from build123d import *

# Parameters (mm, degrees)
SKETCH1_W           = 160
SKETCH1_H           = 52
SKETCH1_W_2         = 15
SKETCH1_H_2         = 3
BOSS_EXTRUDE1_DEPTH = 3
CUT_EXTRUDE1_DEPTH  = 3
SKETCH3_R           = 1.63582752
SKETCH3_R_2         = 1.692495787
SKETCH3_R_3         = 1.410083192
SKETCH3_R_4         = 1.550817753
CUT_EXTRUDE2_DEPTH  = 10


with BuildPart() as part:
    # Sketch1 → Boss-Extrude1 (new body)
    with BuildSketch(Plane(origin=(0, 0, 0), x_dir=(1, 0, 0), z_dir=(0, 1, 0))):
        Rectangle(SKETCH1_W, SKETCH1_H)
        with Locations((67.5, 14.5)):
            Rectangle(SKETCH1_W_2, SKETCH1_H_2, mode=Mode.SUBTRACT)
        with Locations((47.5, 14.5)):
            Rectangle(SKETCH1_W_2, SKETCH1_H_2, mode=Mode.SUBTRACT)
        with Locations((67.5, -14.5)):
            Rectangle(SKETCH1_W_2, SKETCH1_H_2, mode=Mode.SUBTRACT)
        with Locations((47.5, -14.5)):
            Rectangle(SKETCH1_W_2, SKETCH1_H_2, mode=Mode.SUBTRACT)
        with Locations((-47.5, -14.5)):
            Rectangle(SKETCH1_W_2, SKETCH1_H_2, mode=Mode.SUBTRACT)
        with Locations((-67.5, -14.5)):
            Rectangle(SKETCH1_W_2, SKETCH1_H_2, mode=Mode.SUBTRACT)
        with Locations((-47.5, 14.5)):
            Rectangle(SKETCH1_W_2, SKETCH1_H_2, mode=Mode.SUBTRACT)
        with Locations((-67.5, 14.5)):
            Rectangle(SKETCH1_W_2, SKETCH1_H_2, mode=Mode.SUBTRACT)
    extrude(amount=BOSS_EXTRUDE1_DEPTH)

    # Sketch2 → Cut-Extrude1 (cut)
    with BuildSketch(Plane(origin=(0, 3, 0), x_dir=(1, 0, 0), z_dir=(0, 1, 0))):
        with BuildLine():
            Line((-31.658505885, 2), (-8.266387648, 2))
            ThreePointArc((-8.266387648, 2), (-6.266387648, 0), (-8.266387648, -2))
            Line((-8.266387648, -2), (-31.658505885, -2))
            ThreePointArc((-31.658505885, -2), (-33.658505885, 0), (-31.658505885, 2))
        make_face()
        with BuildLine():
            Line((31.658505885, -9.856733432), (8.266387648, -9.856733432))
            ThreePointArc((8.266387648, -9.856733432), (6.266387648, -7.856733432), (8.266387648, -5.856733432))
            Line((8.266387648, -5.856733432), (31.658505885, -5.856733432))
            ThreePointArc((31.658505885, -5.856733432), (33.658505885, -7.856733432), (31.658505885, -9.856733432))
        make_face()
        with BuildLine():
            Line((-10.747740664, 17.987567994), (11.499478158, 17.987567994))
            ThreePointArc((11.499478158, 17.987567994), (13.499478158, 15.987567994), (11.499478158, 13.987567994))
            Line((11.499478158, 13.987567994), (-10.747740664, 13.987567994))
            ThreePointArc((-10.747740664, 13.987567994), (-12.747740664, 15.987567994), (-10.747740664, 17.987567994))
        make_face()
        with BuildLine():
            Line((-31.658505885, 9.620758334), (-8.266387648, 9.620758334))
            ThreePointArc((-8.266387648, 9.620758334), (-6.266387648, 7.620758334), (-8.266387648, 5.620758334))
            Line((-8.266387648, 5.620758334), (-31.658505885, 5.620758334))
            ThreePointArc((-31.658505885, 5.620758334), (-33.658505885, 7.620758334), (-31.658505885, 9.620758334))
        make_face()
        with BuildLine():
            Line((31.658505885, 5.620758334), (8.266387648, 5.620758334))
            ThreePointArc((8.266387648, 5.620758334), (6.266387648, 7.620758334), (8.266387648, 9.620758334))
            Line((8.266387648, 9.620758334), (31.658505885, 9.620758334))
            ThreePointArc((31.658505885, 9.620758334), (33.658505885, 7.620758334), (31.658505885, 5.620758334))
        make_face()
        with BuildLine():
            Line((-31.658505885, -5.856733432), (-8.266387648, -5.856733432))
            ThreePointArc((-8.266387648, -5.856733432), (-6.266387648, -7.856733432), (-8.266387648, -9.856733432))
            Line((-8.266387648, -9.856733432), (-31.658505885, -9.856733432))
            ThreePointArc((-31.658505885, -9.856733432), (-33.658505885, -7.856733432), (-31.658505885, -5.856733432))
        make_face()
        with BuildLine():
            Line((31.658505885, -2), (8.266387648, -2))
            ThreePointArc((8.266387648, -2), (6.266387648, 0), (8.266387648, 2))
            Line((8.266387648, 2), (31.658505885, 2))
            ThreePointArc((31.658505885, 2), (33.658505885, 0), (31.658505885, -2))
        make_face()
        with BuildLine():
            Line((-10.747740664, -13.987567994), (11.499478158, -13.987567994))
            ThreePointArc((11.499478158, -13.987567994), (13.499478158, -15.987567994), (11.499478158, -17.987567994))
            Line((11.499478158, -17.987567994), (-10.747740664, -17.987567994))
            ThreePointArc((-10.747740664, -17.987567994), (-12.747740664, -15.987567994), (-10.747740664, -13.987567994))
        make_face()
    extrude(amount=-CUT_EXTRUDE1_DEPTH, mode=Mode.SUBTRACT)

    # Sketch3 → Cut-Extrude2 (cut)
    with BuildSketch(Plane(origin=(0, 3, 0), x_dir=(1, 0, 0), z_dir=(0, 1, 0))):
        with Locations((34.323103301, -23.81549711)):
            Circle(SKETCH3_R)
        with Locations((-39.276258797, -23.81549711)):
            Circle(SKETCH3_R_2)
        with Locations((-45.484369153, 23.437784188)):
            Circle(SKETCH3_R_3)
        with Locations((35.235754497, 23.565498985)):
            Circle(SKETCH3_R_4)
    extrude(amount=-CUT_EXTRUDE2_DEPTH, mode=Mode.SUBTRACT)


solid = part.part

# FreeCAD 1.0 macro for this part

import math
import FreeCAD as App
import Part
import Sketcher

doc = App.newDocument("Part")
body = doc.addObject("PartDesign::Body", "Body")

sketch1 = body.newObject("Sketcher::SketchObject", "Sketch")
sketch1.AttachmentSupport = (doc.getObject("XZ_Plane"), [""])
sketch1.MapMode = "FlatFace"
sketch1.addGeometry([
    Part.LineSegment(App.Vector(-80, -26, 0), App.Vector(-80, 26, 0)),
    Part.LineSegment(App.Vector(-80, 26, 0), App.Vector(80, 26, 0)),
    Part.LineSegment(App.Vector(80, 26, 0), App.Vector(80, -26, 0)),
    Part.LineSegment(App.Vector(80, -26, 0), App.Vector(-80, -26, 0)),
    Part.LineSegment(App.Vector(-60, 16, 0), App.Vector(-75, 16, 0)),
    Part.LineSegment(App.Vector(-75, 16, 0), App.Vector(-75, 13, 0)),
    Part.LineSegment(App.Vector(-75, 13, 0), App.Vector(-60, 13, 0)),
    Part.LineSegment(App.Vector(-60, 13, 0), App.Vector(-60, 16, 0)),
    Part.LineSegment(App.Vector(-40, 16, 0), App.Vector(-55, 16, 0)),
    Part.LineSegment(App.Vector(-55, 16, 0), App.Vector(-55, 13, 0)),
    Part.LineSegment(App.Vector(-55, 13, 0), App.Vector(-40, 13, 0)),
    Part.LineSegment(App.Vector(-40, 13, 0), App.Vector(-40, 16, 0)),
    Part.LineSegment(App.Vector(55, 16, 0), App.Vector(40, 16, 0)),
    Part.LineSegment(App.Vector(40, 16, 0), App.Vector(40, 13, 0)),
    Part.LineSegment(App.Vector(40, 13, 0), App.Vector(55, 13, 0)),
    Part.LineSegment(App.Vector(55, 13, 0), App.Vector(55, 16, 0)),
    Part.LineSegment(App.Vector(75, 16, 0), App.Vector(60, 16, 0)),
    Part.LineSegment(App.Vector(60, 16, 0), App.Vector(60, 13, 0)),
    Part.LineSegment(App.Vector(60, 13, 0), App.Vector(75, 13, 0)),
    Part.LineSegment(App.Vector(75, 13, 0), App.Vector(75, 16, 0)),
    Part.LineSegment(App.Vector(-60, -13, 0), App.Vector(-75, -13, 0)),
    Part.LineSegment(App.Vector(-75, -13, 0), App.Vector(-75, -16, 0)),
    Part.LineSegment(App.Vector(-75, -16, 0), App.Vector(-60, -16, 0)),
    Part.LineSegment(App.Vector(-60, -16, 0), App.Vector(-60, -13, 0)),
    Part.LineSegment(App.Vector(-40, -13, 0), App.Vector(-55, -13, 0)),
    Part.LineSegment(App.Vector(-55, -13, 0), App.Vector(-55, -16, 0)),
    Part.LineSegment(App.Vector(-55, -16, 0), App.Vector(-40, -16, 0)),
    Part.LineSegment(App.Vector(-40, -16, 0), App.Vector(-40, -13, 0)),
    Part.LineSegment(App.Vector(55, -13, 0), App.Vector(40, -13, 0)),
    Part.LineSegment(App.Vector(40, -13, 0), App.Vector(40, -16, 0)),
    Part.LineSegment(App.Vector(40, -16, 0), App.Vector(55, -16, 0)),
    Part.LineSegment(App.Vector(55, -16, 0), App.Vector(55, -13, 0)),
    Part.LineSegment(App.Vector(75, -13, 0), App.Vector(60, -13, 0)),
    Part.LineSegment(App.Vector(60, -13, 0), App.Vector(60, -16, 0)),
    Part.LineSegment(App.Vector(60, -16, 0), App.Vector(75, -16, 0)),
    Part.LineSegment(App.Vector(75, -16, 0), App.Vector(75, -13, 0)),
], False)
sketch1.addConstraint([
    Sketcher.Constraint("Coincident", 0, 2, 1, 1),
    Sketcher.Constraint("Coincident", 1, 2, 2, 1),
    Sketcher.Constraint("Coincident", 2, 2, 3, 1),
    Sketcher.Constraint("Coincident", 3, 2, 0, 1),
    Sketcher.Constraint("Coincident", 4, 2, 5, 1),
    Sketcher.Constraint("Coincident", 5, 2, 6, 1),
    Sketcher.Constraint("Coincident", 6, 2, 7, 1),
    Sketcher.Constraint("Coincident", 7, 2, 4, 1),
    Sketcher.Constraint("Coincident", 8, 2, 9, 1),
    Sketcher.Constraint("Coincident", 9, 2, 10, 1),
    Sketcher.Constraint("Coincident", 10, 2, 11, 1),
    Sketcher.Constraint("Coincident", 11, 2, 8, 1),
    Sketcher.Constraint("Coincident", 12, 2, 13, 1),
    Sketcher.Constraint("Coincident", 13, 2, 14, 1),
    Sketcher.Constraint("Coincident", 14, 2, 15, 1),
    Sketcher.Constraint("Coincident", 15, 2, 12, 1),
    Sketcher.Constraint("Coincident", 16, 2, 17, 1),
    Sketcher.Constraint("Coincident", 17, 2, 18, 1),
    Sketcher.Constraint("Coincident", 18, 2, 19, 1),
    Sketcher.Constraint("Coincident", 19, 2, 16, 1),
    Sketcher.Constraint("Coincident", 20, 2, 21, 1),
    Sketcher.Constraint("Coincident", 21, 2, 22, 1),
    Sketcher.Constraint("Coincident", 22, 2, 23, 1),
    Sketcher.Constraint("Coincident", 23, 2, 20, 1),
    Sketcher.Constraint("Coincident", 24, 2, 25, 1),
    Sketcher.Constraint("Coincident", 25, 2, 26, 1),
    Sketcher.Constraint("Coincident", 26, 2, 27, 1),
    Sketcher.Constraint("Coincident", 27, 2, 24, 1),
    Sketcher.Constraint("Coincident", 28, 2, 29, 1),
    Sketcher.Constraint("Coincident", 29, 2, 30, 1),
    Sketcher.Constraint("Coincident", 30, 2, 31, 1),
    Sketcher.Constraint("Coincident", 31, 2, 28, 1),
    Sketcher.Constraint("Coincident", 32, 2, 33, 1),
    Sketcher.Constraint("Coincident", 33, 2, 34, 1),
    Sketcher.Constraint("Coincident", 34, 2, 35, 1),
    Sketcher.Constraint("Coincident", 35, 2, 32, 1),
    Sketcher.Constraint("Vertical", 0),
    Sketcher.Constraint("Horizontal", 1),
    Sketcher.Constraint("Vertical", 2),
    Sketcher.Constraint("Horizontal", 3),
    Sketcher.Constraint("Horizontal", 4),
    Sketcher.Constraint("Vertical", 5),
    Sketcher.Constraint("Horizontal", 6),
    Sketcher.Constraint("Vertical", 7),
    Sketcher.Constraint("Horizontal", 8),
    Sketcher.Constraint("Vertical", 9),
    Sketcher.Constraint("Horizontal", 10),
    Sketcher.Constraint("Vertical", 11),
    Sketcher.Constraint("Horizontal", 12),
    Sketcher.Constraint("Vertical", 13),
    Sketcher.Constraint("Horizontal", 14),
    Sketcher.Constraint("Vertical", 15),
    Sketcher.Constraint("Horizontal", 16),
    Sketcher.Constraint("Vertical", 17),
    Sketcher.Constraint("Horizontal", 18),
    Sketcher.Constraint("Vertical", 19),
    Sketcher.Constraint("Horizontal", 20),
    Sketcher.Constraint("Vertical", 21),
    Sketcher.Constraint("Horizontal", 22),
    Sketcher.Constraint("Vertical", 23),
    Sketcher.Constraint("Horizontal", 24),
    Sketcher.Constraint("Vertical", 25),
    Sketcher.Constraint("Horizontal", 26),
    Sketcher.Constraint("Vertical", 27),
    Sketcher.Constraint("Horizontal", 28),
    Sketcher.Constraint("Vertical", 29),
    Sketcher.Constraint("Horizontal", 30),
    Sketcher.Constraint("Vertical", 31),
    Sketcher.Constraint("Horizontal", 32),
    Sketcher.Constraint("Vertical", 33),
    Sketcher.Constraint("Horizontal", 34),
    Sketcher.Constraint("Vertical", 35),
    Sketcher.Constraint("Symmetric", 0, 2, 2, 2, -1, 1),
    Sketcher.Constraint("Symmetric", 18, 2, 20, 2, -1, 1),
    Sketcher.Constraint("Symmetric", 16, 2, 22, 2, -1, 1),
    Sketcher.Constraint("Symmetric", 14, 2, 24, 2, -1, 1),
    Sketcher.Constraint("Symmetric", 12, 2, 26, 2, -1, 1),
    Sketcher.Constraint("Symmetric", 10, 2, 28, 2, -1, 1),
    Sketcher.Constraint("Symmetric", 8, 2, 30, 2, -1, 1),
    Sketcher.Constraint("Symmetric", 6, 2, 32, 2, -1, 1),
    Sketcher.Constraint("Symmetric", 4, 2, 34, 2, -1, 1),
    Sketcher.Constraint("Symmetric", 11, 2, 12, 2, -2),
    Sketcher.Constraint("Symmetric", 9, 2, 14, 2, -2),
    Sketcher.Constraint("Symmetric", 7, 2, 16, 2, -2),
    Sketcher.Constraint("Symmetric", 5, 2, 18, 2, -2),
    Sketcher.Constraint("Horizontal", 7, 2, 8, 2),
    Sketcher.Constraint("Horizontal", 6, 2, 9, 2),
    Sketcher.Constraint("Equal", 6, 8),
    Sketcher.Constraint("DistanceX", 1, 1, 1, 2, 160.0),
    Sketcher.Constraint("DistanceX", 4, 2, 4, 1, 15.0),
    Sketcher.Constraint("DistanceY", 0, 1, 0, 2, 52.0),
    Sketcher.Constraint("DistanceY", 5, 2, 5, 1, 3.0),
    Sketcher.Constraint("DistanceX", 4, 2, -1, 1, 75.0),
    Sketcher.Constraint("DistanceY", -1, 1, 4, 2, 16.0),
    Sketcher.Constraint("DistanceX", 8, 2, -1, 1, 55.0),
])
pad1 = body.newObject("PartDesign::Pad", "Pad")
pad1.Profile = sketch1
pad1.Length = 3
pad1.Reversed = True

sketch2 = body.newObject("Sketcher::SketchObject", "Sketch001")
sketch2.AttachmentSupport = (doc.getObject("XZ_Plane"), [""])
sketch2.MapMode = "FlatFace"
sketch2.AttachmentOffset = App.Placement(App.Vector(0, 0, -3), App.Rotation())
sketch2.addGeometry([
    Part.LineSegment(App.Vector(-8.266388, -2, 0), App.Vector(-31.658506, -2, 0)),
    Part.ArcOfCircle(Part.Circle(App.Vector(-31.658506, 0, 0), App.Vector(0, 0, 1), 2), math.radians(90), math.radians(270)),
    Part.LineSegment(App.Vector(-31.658506, 2, 0), App.Vector(-8.266388, 2, 0)),
    Part.ArcOfCircle(Part.Circle(App.Vector(-8.266388, 0, 0), App.Vector(0, 0, 1), 2), math.radians(-90), math.radians(90)),
    Part.LineSegment(App.Vector(8.266388, 9.856733, 0), App.Vector(31.658506, 9.856733, 0)),
    Part.ArcOfCircle(Part.Circle(App.Vector(31.658506, 7.856733, 0), App.Vector(0, 0, 1), 2), math.radians(-90), math.radians(90)),
    Part.LineSegment(App.Vector(31.658506, 5.856733, 0), App.Vector(8.266388, 5.856733, 0)),
    Part.ArcOfCircle(Part.Circle(App.Vector(8.266388, 7.856733, 0), App.Vector(0, 0, 1), 2), math.radians(90), math.radians(270)),
    Part.LineSegment(App.Vector(11.499478, -17.987568, 0), App.Vector(-10.747741, -17.987568, 0)),
    Part.ArcOfCircle(Part.Circle(App.Vector(-10.747741, -15.987568, 0), App.Vector(0, 0, 1), 2), math.radians(90), math.radians(270)),
    Part.LineSegment(App.Vector(-10.747741, -13.987568, 0), App.Vector(11.499478, -13.987568, 0)),
    Part.ArcOfCircle(Part.Circle(App.Vector(11.499478, -15.987568, 0), App.Vector(0, 0, 1), 2), math.radians(-90), math.radians(90)),
    Part.LineSegment(App.Vector(-8.266388, -9.620758, 0), App.Vector(-31.658506, -9.620758, 0)),
    Part.ArcOfCircle(Part.Circle(App.Vector(-31.658506, -7.620758, 0), App.Vector(0, 0, 1), 2), math.radians(90), math.radians(270)),
    Part.LineSegment(App.Vector(-31.658506, -5.620758, 0), App.Vector(-8.266388, -5.620758, 0)),
    Part.ArcOfCircle(Part.Circle(App.Vector(-8.266388, -7.620758, 0), App.Vector(0, 0, 1), 2), math.radians(-90), math.radians(90)),
    Part.LineSegment(App.Vector(8.266388, -5.620758, 0), App.Vector(31.658506, -5.620758, 0)),
    Part.ArcOfCircle(Part.Circle(App.Vector(31.658506, -7.620758, 0), App.Vector(0, 0, 1), 2), math.radians(-90), math.radians(90)),
    Part.LineSegment(App.Vector(31.658506, -9.620758, 0), App.Vector(8.266388, -9.620758, 0)),
    Part.ArcOfCircle(Part.Circle(App.Vector(8.266388, -7.620758, 0), App.Vector(0, 0, 1), 2), math.radians(90), math.radians(270)),
    Part.LineSegment(App.Vector(-8.266388, 5.856733, 0), App.Vector(-31.658506, 5.856733, 0)),
    Part.ArcOfCircle(Part.Circle(App.Vector(-31.658506, 7.856733, 0), App.Vector(0, 0, 1), 2), math.radians(90), math.radians(270)),
    Part.LineSegment(App.Vector(-31.658506, 9.856733, 0), App.Vector(-8.266388, 9.856733, 0)),
    Part.ArcOfCircle(Part.Circle(App.Vector(-8.266388, 7.856733, 0), App.Vector(0, 0, 1), 2), math.radians(-90), math.radians(90)),
    Part.LineSegment(App.Vector(8.266388, 2, 0), App.Vector(31.658506, 2, 0)),
    Part.ArcOfCircle(Part.Circle(App.Vector(31.658506, 0, 0), App.Vector(0, 0, 1), 2), math.radians(-90), math.radians(90)),
    Part.LineSegment(App.Vector(31.658506, -2, 0), App.Vector(8.266388, -2, 0)),
    Part.ArcOfCircle(Part.Circle(App.Vector(8.266388, 0, 0), App.Vector(0, 0, 1), 2), math.radians(90), math.radians(270)),
    Part.LineSegment(App.Vector(11.499478, 13.987568, 0), App.Vector(-10.747741, 13.987568, 0)),
    Part.ArcOfCircle(Part.Circle(App.Vector(-10.747741, 15.987568, 0), App.Vector(0, 0, 1), 2), math.radians(90), math.radians(270)),
    Part.LineSegment(App.Vector(-10.747741, 17.987568, 0), App.Vector(11.499478, 17.987568, 0)),
    Part.ArcOfCircle(Part.Circle(App.Vector(11.499478, 15.987568, 0), App.Vector(0, 0, 1), 2), math.radians(-90), math.radians(90)),
], False)
sketch2.addConstraint([
    Sketcher.Constraint("Tangent", 0, 2, 1, 2),
    Sketcher.Constraint("Tangent", 1, 1, 2, 1),
    Sketcher.Constraint("Tangent", 2, 2, 3, 2),
    Sketcher.Constraint("Tangent", 3, 1, 0, 1),
    Sketcher.Constraint("Tangent", 4, 2, 5, 2),
    Sketcher.Constraint("Tangent", 5, 1, 6, 1),
    Sketcher.Constraint("Tangent", 6, 2, 7, 2),
    Sketcher.Constraint("Tangent", 7, 1, 4, 1),
    Sketcher.Constraint("Tangent", 8, 2, 9, 2),
    Sketcher.Constraint("Tangent", 9, 1, 10, 1),
    Sketcher.Constraint("Tangent", 10, 2, 11, 2),
    Sketcher.Constraint("Tangent", 11, 1, 8, 1),
    Sketcher.Constraint("Tangent", 12, 2, 13, 2),
    Sketcher.Constraint("Tangent", 13, 1, 14, 1),
    Sketcher.Constraint("Tangent", 14, 2, 15, 2),
    Sketcher.Constraint("Tangent", 15, 1, 12, 1),
    Sketcher.Constraint("Tangent", 16, 2, 17, 2),
    Sketcher.Constraint("Tangent", 17, 1, 18, 1),
    Sketcher.Constraint("Tangent", 18, 2, 19, 2),
    Sketcher.Constraint("Tangent", 19, 1, 16, 1),
    Sketcher.Constraint("Tangent", 20, 2, 21, 2),
    Sketcher.Constraint("Tangent", 21, 1, 22, 1),
    Sketcher.Constraint("Tangent", 22, 2, 23, 2),
    Sketcher.Constraint("Tangent", 23, 1, 20, 1),
    Sketcher.Constraint("Tangent", 24, 2, 25, 2),
    Sketcher.Constraint("Tangent", 25, 1, 26, 1),
    Sketcher.Constraint("Tangent", 26, 2, 27, 2),
    Sketcher.Constraint("Tangent", 27, 1, 24, 1),
    Sketcher.Constraint("Tangent", 28, 2, 29, 2),
    Sketcher.Constraint("Tangent", 29, 1, 30, 1),
    Sketcher.Constraint("Tangent", 30, 2, 31, 2),
    Sketcher.Constraint("Tangent", 31, 1, 28, 1),
    Sketcher.Constraint("Horizontal", 0),
    Sketcher.Constraint("Horizontal", 2),
    Sketcher.Constraint("Horizontal", 4),
    Sketcher.Constraint("Horizontal", 6),
    Sketcher.Constraint("Horizontal", 8),
    Sketcher.Constraint("Horizontal", 10),
    Sketcher.Constraint("Horizontal", 12),
    Sketcher.Constraint("Horizontal", 14),
    Sketcher.Constraint("Horizontal", 16),
    Sketcher.Constraint("Horizontal", 18),
    Sketcher.Constraint("Horizontal", 20),
    Sketcher.Constraint("Horizontal", 22),
    Sketcher.Constraint("Horizontal", 24),
    Sketcher.Constraint("Horizontal", 26),
    Sketcher.Constraint("Horizontal", 28),
    Sketcher.Constraint("Horizontal", 30),
    Sketcher.Constraint("Equal", 3, 5),
    Sketcher.Constraint("Equal", 7, 9),
    Sketcher.Constraint("Equal", 11, 13),
    Sketcher.Constraint("Equal", 15, 17),
    Sketcher.Constraint("Equal", 19, 21),
    Sketcher.Constraint("Equal", 23, 25),
    Sketcher.Constraint("Equal", 27, 29),
    Sketcher.Constraint("Symmetric", 1, 3, 25, 3, -1, 1),
    Sketcher.Constraint("Symmetric", 13, 3, 17, 3, -2),
    Sketcher.Constraint("Symmetric", 5, 3, 21, 3, -2),
    Sketcher.Constraint("Symmetric", 3, 3, 27, 3, -2),
    Sketcher.Constraint("Symmetric", 9, 3, 29, 3, -1),
    Sketcher.Constraint("Vertical", 1, 3, 13, 3),
    Sketcher.Constraint("Vertical", 3, 3, 15, 3),
    Sketcher.Constraint("Vertical", 5, 3, 17, 3),
    Sketcher.Constraint("Vertical", 7, 3, 19, 3),
    Sketcher.Constraint("Vertical", 15, 3, 23, 3),
    Sketcher.Constraint("Vertical", 19, 3, 27, 3),
    Sketcher.Constraint("Vertical", 11, 3, 31, 3),
    Sketcher.Constraint("Radius", 1, 2.0),
    Sketcher.Constraint("DistanceX", 0, 2, 0, 1, 23.392118),
    Sketcher.Constraint("DistanceX", 8, 2, 8, 1, 22.247219),
    Sketcher.Constraint("DistanceY", 9, 3, 7, 3, 23.844301),
    Sketcher.Constraint("DistanceX", 9, 3, -1, 1, 10.747741),
    Sketcher.Constraint("DistanceY", 13, 3, -1, 1, 7.620758),
    Sketcher.Constraint("DistanceX", 1, 3, 5, 3, 63.317012),
    Sketcher.Constraint("DistanceY", 9, 3, 13, 3, 8.36681),
])
pocket1 = body.newObject("PartDesign::Pocket", "Pocket")
pocket1.Profile = sketch2
pocket1.Length = 3
pocket1.Reversed = True

sketch3 = body.newObject("Sketcher::SketchObject", "Sketch002")
sketch3.AttachmentSupport = (doc.getObject("XZ_Plane"), [""])
sketch3.MapMode = "FlatFace"
sketch3.AttachmentOffset = App.Placement(App.Vector(0, 0, -3), App.Rotation())
sketch3.addGeometry([
    Part.Circle(App.Vector(34.323103, 23.815497, 0), App.Vector(0, 0, 1), 1.635828),
    Part.Circle(App.Vector(-39.276259, 23.815497, 0), App.Vector(0, 0, 1), 1.692496),
    Part.Circle(App.Vector(-45.484369, -23.437784, 0), App.Vector(0, 0, 1), 1.410083),
    Part.Circle(App.Vector(35.235754, -23.565499, 0), App.Vector(0, 0, 1), 1.550818),
], False)
sketch3.addConstraint([
    Sketcher.Constraint("Horizontal", 0, 3, 1, 3),
    Sketcher.Constraint("Diameter", 1, 3.384992),
    Sketcher.Constraint("Diameter", 0, 3.271655),
    Sketcher.Constraint("Diameter", 2, 2.820166),
    Sketcher.Constraint("Diameter", 3, 3.101636),
    Sketcher.Constraint("DistanceY", 3, 3, -1, 1, 23.565499),
    Sketcher.Constraint("DistanceX", 1, 3, -1, 1, 39.276259),
    Sketcher.Constraint("DistanceX", 2, 3, -1, 1, 45.484369),
    Sketcher.Constraint("DistanceY", 2, 3, 1, 3, 47.253281),
    Sketcher.Constraint("DistanceX", 0, 3, 3, 3, 0.912651),
    Sketcher.Constraint("DistanceX", -1, 1, 0, 3, 34.323103),
    Sketcher.Constraint("DistanceY", -1, 1, 0, 3, 23.815497),
])
pocket2 = body.newObject("PartDesign::Pocket", "Pocket001")
pocket2.Profile = sketch3
pocket2.Length = 10
pocket2.Reversed = True

doc.recompute()
